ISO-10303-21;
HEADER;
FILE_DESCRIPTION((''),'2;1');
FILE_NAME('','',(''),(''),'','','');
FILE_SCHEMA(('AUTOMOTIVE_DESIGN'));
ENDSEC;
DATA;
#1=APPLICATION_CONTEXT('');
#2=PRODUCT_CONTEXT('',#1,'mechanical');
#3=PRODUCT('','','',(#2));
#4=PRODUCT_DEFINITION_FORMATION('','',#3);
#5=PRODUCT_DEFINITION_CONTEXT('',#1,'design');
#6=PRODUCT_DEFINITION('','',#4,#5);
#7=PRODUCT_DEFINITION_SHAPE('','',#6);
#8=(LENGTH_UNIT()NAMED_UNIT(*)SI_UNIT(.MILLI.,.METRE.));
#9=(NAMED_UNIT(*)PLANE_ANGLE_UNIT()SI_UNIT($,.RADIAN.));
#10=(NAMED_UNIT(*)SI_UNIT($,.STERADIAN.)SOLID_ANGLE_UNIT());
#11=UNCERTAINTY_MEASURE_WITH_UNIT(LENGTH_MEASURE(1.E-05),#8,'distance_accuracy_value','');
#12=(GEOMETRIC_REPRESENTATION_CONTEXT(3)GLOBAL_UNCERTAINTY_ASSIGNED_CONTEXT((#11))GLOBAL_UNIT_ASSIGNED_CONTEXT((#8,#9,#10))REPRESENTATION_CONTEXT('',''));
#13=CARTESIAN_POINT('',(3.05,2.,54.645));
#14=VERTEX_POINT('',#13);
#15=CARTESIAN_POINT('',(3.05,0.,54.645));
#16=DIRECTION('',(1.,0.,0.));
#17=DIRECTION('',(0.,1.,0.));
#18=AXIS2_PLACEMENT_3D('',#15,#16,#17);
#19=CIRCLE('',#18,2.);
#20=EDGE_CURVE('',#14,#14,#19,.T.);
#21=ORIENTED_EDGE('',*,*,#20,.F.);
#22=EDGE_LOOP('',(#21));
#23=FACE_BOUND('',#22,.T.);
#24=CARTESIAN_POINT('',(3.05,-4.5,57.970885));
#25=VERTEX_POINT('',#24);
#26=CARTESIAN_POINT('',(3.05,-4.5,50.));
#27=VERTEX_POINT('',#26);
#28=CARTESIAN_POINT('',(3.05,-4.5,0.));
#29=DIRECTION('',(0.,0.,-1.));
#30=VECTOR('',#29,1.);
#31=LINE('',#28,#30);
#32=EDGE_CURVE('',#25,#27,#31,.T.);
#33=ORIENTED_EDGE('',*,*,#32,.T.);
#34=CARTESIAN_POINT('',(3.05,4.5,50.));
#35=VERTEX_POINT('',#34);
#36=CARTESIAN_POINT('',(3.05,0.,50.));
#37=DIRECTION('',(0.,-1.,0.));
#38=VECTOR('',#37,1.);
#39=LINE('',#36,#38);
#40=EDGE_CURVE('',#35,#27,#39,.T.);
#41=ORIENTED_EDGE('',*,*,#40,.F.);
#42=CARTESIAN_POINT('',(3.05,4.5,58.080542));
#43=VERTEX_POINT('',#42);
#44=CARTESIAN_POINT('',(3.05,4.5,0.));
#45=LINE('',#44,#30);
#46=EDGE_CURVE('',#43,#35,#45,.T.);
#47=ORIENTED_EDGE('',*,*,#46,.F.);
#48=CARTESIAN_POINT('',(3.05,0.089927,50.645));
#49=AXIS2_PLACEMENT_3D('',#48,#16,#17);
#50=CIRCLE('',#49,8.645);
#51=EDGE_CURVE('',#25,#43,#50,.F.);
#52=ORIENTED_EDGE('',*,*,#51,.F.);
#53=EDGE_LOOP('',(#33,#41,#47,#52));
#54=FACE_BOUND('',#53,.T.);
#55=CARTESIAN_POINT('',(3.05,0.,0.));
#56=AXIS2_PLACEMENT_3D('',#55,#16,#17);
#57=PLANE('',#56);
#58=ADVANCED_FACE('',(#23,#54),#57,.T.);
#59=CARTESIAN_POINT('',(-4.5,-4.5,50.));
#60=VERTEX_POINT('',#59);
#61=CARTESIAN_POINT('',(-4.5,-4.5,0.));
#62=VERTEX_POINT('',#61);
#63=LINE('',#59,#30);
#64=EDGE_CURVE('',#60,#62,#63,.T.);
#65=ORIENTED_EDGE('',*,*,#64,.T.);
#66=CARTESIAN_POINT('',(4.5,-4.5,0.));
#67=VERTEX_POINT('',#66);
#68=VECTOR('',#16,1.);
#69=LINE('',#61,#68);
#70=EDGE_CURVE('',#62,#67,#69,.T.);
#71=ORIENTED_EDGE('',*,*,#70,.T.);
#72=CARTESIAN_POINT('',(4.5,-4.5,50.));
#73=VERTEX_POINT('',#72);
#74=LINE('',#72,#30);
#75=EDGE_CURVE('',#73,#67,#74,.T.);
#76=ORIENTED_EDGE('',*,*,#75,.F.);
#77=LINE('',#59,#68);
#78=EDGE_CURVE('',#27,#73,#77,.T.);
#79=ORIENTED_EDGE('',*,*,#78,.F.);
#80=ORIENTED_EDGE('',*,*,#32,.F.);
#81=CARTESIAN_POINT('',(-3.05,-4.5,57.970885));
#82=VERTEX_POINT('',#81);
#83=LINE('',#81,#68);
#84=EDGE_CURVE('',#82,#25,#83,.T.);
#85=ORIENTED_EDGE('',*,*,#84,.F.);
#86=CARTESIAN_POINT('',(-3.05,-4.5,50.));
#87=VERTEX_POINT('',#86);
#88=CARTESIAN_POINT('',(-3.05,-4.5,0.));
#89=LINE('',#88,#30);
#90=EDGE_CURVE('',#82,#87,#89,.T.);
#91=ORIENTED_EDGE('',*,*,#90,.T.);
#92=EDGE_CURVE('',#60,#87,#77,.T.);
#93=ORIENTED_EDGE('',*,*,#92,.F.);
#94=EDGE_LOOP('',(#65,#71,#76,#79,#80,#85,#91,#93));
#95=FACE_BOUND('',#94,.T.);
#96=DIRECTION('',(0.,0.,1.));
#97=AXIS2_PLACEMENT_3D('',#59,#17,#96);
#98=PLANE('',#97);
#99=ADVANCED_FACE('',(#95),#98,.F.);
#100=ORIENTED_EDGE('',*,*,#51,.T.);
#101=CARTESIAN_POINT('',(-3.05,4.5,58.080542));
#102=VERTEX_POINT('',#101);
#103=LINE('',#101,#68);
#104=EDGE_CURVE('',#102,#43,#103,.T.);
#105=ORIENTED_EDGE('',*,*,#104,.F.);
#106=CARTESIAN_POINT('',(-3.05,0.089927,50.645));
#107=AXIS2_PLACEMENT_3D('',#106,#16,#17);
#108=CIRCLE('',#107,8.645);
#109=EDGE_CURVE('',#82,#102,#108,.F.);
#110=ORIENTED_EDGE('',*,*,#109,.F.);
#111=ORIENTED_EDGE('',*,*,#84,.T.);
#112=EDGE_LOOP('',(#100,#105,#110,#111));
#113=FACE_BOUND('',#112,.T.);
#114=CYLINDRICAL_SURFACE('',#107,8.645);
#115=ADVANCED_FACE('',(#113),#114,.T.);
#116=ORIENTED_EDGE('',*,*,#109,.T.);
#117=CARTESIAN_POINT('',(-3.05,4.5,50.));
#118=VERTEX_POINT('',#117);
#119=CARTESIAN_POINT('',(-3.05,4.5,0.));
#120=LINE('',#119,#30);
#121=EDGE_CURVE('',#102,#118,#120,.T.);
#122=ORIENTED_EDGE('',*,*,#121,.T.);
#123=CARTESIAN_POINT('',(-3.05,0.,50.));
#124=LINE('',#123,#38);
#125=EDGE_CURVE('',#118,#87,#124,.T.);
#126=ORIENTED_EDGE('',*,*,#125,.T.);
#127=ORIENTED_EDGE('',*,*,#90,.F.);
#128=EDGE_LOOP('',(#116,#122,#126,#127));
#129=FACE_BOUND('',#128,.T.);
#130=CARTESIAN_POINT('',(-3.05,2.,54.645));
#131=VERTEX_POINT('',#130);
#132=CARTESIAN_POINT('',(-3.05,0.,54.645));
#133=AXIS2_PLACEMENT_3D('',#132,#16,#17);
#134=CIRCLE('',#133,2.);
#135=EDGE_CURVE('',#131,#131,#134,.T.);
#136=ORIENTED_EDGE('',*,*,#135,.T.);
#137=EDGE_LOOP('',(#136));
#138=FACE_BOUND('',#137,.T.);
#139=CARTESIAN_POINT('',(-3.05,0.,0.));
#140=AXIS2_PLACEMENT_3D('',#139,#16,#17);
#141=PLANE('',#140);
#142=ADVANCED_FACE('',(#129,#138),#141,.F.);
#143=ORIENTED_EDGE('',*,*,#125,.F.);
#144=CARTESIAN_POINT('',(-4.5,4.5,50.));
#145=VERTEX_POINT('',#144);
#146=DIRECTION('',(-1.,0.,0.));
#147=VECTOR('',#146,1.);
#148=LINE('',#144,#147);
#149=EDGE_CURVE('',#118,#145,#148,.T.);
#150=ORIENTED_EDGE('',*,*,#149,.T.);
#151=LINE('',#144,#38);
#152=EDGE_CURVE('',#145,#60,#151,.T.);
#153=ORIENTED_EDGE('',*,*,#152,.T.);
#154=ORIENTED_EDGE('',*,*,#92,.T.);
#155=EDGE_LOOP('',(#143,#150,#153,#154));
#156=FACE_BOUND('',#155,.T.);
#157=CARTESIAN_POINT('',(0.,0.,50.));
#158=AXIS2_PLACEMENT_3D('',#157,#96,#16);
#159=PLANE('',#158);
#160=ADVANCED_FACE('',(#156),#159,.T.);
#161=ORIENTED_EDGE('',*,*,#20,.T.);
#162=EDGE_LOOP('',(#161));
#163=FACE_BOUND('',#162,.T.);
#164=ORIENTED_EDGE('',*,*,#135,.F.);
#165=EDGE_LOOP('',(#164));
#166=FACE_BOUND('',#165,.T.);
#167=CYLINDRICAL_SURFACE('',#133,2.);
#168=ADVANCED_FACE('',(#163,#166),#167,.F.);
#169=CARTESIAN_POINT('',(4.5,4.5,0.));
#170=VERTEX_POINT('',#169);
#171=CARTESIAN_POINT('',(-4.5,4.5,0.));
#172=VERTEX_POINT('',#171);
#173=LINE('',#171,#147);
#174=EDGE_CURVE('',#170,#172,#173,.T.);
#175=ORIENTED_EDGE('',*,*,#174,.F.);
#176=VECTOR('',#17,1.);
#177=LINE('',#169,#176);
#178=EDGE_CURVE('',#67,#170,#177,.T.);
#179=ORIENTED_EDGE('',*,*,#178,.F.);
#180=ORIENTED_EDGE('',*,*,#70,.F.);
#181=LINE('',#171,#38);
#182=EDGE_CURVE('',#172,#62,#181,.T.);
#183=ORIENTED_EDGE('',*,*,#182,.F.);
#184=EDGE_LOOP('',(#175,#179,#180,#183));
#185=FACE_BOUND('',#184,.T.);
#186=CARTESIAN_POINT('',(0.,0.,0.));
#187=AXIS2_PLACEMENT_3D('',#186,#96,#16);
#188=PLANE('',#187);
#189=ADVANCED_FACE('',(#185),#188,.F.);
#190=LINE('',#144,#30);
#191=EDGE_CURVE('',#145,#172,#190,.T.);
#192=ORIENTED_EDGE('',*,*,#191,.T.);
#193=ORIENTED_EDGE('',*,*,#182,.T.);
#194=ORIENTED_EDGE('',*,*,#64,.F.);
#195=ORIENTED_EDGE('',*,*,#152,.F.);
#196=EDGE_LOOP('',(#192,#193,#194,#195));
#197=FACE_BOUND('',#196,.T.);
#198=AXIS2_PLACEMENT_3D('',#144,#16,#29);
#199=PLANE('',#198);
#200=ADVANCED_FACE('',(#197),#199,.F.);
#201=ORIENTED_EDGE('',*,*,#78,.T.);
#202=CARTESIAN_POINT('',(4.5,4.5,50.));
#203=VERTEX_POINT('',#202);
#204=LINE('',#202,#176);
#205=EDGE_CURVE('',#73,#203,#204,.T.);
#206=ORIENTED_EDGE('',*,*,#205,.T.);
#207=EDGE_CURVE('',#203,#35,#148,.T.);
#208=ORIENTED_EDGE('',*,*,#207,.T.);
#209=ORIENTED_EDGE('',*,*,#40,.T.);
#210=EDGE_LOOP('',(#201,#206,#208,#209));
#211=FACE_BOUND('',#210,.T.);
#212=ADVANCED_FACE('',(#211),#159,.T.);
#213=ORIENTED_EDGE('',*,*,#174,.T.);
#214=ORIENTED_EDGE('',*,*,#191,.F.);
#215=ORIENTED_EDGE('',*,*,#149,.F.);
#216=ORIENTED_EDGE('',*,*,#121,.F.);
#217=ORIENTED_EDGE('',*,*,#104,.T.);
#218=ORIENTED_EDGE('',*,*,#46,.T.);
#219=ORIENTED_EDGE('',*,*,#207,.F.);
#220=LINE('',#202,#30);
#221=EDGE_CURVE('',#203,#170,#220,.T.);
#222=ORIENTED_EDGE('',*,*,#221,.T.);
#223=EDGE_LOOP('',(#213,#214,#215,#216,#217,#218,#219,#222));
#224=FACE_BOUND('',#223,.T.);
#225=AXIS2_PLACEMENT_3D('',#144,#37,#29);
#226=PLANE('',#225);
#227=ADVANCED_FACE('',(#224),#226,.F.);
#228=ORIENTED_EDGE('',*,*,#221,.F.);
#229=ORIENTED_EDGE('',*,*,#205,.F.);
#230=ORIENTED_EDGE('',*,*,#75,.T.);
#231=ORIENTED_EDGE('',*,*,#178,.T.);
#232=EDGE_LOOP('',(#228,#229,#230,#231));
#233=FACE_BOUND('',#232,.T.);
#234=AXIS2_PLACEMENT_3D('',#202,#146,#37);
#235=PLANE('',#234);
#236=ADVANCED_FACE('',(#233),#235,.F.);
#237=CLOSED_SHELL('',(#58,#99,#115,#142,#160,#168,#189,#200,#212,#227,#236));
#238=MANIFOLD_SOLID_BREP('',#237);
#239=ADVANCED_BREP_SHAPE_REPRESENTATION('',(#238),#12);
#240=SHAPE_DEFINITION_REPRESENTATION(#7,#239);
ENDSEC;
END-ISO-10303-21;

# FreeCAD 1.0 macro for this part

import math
import FreeCAD as App
import Part
import Sketcher


def add_polygon(sketch, points):
    """Adds a closed chain of lines whose ends are joined by coincident constraints."""
    first, n = sketch.GeometryCount, len(points)
    for a, b in zip(points, points[1:] + points[:1]):
        sketch.addGeometry(Part.LineSegment(App.Vector(*a, 0), App.Vector(*b, 0)), False)
    for i in range(n):
        sketch.addConstraint(Sketcher.Constraint("Coincident", first + i, 2, first + (i + 1) % n, 1))

doc = App.newDocument("Part")
params = doc.addObject("Spreadsheet::Sheet", "Params")
for row, (alias, value) in enumerate([
    ("sketch1_width", "9 mm"),
    ("pad1_length", "50 mm"),
    ("sketch2_diameter", "4 mm"),
    ("sketch2_width", "9 mm"),
    ("pad2_length", "6.1 mm"),
], start=1):
    params.set(f"A{row}", alias)
    params.set(f"B{row}", "=" + value)
    params.setAlias(f"B{row}", alias)

body = doc.addObject("PartDesign::Body", "Body")

sketch1 = body.newObject("Sketcher::SketchObject", "Sketch")
sketch1.AttachmentSupport = (doc.getObject("XY_Plane"), [""])
sketch1.MapMode = "FlatFace"
add_polygon(sketch1, [(-4.5, 4.5), (-4.5, -4.5), (4.5, -4.5), (4.5, 4.5)])
sketch1.addConstraint([
    Sketcher.Constraint("Vertical", 0),
    Sketcher.Constraint("Horizontal", 1),
    Sketcher.Constraint("Vertical", 2),
    Sketcher.Constraint("Horizontal", 3),
    Sketcher.Constraint("Symmetric", 0, 2, 2, 2, -1, 1),
    Sketcher.Constraint("Equal", 3, 0),
    Sketcher.Constraint("DistanceX", 1, 1, 1, 2, 9.0),
])
sketch1.setExpression("Constraints[10]", "Params.sketch1_width")
pad1 = body.newObject("PartDesign::Pad", "Pad")
pad1.Profile = sketch1
pad1.setExpression("Length", "Params.pad1_length")

sketch2 = body.newObject("Sketcher::SketchObject", "Sketch001")
sketch2.AttachmentSupport = (doc.getObject("YZ_Plane"), [""])
sketch2.MapMode = "FlatFace"
sketch2.AttachmentOffset = App.Placement(App.Vector(0, 0, 3.05), App.Rotation())
sketch2.addGeometry([
    Part.LineSegment(App.Vector(4.5, 50, 0), App.Vector(4.5, 58.080542, 0)),
    Part.ArcOfCircle(Part.Circle(App.Vector(0.089927, 50.645, 0), App.Vector(0, 0, 1), 8.645), math.radians(59.327518), math.radians(90.000001)),
    Part.ArcOfCircle(Part.Circle(App.Vector(0.089927, 50.645, 0), App.Vector(0, 0, 1), 8.645), math.radians(90.000001), math.radians(122.068604)),
    Part.LineSegment(App.Vector(-4.5, 57.970885, 0), App.Vector(-4.5, 50, 0)),
    Part.LineSegment(App.Vector(-4.5, 50, 0), App.Vector(4.5, 50, 0)),
    Part.Circle(App.Vector(0, 54.645, 0), App.Vector(0, 0, 1), 2),
], False)
sketch2.addConstraint([
    Sketcher.Constraint("Coincident", 0, 2, 1, 1),
    Sketcher.Constraint("Tangent", 1, 2, 2, 1),
    Sketcher.Constraint("Coincident", 2, 2, 3, 1),
    Sketcher.Constraint("Coincident", 3, 2, 4, 1),
    Sketcher.Constraint("Coincident", 4, 2, 0, 1),
    Sketcher.Constraint("Vertical", 0),
    Sketcher.Constraint("Vertical", 3),
    Sketcher.Constraint("Horizontal", 4),
    Sketcher.Constraint("Equal", 1, 2),
    Sketcher.Constraint("PointOnObject", 5, 3, -2),
    Sketcher.Constraint("Vertical", 2, 3, 1, 2),
    Sketcher.Constraint("Diameter", 5, 4.0),
    Sketcher.Constraint("DistanceX", 4, 1, 4, 2, 9.0),
    Sketcher.Constraint("DistanceY", -1, 1, 3, 2, 50.0),
    Sketcher.Constraint("Radius", 1, 8.645),
    Sketcher.Constraint("DistanceY", 1, 3, 5, 3, 4.0),
    Sketcher.Constraint("DistanceX", -1, 1, 0, 2, 4.5),
    Sketcher.Constraint("DistanceY", -1, 1, 1, 2, 59.29),
    Sketcher.Constraint("DistanceY", 0, 1, 0, 2, 8.080542),
])
sketch2.setExpression("Constraints[11]", "Params.sketch2_diameter")
sketch2.setExpression("Constraints[12]", "Params.sketch2_width")
pad2 = body.newObject("PartDesign::Pad", "Pad001")
pad2.Profile = sketch2
pad2.setExpression("Length", "Params.pad2_length")
pad2.Reversed = True

doc.recompute()
